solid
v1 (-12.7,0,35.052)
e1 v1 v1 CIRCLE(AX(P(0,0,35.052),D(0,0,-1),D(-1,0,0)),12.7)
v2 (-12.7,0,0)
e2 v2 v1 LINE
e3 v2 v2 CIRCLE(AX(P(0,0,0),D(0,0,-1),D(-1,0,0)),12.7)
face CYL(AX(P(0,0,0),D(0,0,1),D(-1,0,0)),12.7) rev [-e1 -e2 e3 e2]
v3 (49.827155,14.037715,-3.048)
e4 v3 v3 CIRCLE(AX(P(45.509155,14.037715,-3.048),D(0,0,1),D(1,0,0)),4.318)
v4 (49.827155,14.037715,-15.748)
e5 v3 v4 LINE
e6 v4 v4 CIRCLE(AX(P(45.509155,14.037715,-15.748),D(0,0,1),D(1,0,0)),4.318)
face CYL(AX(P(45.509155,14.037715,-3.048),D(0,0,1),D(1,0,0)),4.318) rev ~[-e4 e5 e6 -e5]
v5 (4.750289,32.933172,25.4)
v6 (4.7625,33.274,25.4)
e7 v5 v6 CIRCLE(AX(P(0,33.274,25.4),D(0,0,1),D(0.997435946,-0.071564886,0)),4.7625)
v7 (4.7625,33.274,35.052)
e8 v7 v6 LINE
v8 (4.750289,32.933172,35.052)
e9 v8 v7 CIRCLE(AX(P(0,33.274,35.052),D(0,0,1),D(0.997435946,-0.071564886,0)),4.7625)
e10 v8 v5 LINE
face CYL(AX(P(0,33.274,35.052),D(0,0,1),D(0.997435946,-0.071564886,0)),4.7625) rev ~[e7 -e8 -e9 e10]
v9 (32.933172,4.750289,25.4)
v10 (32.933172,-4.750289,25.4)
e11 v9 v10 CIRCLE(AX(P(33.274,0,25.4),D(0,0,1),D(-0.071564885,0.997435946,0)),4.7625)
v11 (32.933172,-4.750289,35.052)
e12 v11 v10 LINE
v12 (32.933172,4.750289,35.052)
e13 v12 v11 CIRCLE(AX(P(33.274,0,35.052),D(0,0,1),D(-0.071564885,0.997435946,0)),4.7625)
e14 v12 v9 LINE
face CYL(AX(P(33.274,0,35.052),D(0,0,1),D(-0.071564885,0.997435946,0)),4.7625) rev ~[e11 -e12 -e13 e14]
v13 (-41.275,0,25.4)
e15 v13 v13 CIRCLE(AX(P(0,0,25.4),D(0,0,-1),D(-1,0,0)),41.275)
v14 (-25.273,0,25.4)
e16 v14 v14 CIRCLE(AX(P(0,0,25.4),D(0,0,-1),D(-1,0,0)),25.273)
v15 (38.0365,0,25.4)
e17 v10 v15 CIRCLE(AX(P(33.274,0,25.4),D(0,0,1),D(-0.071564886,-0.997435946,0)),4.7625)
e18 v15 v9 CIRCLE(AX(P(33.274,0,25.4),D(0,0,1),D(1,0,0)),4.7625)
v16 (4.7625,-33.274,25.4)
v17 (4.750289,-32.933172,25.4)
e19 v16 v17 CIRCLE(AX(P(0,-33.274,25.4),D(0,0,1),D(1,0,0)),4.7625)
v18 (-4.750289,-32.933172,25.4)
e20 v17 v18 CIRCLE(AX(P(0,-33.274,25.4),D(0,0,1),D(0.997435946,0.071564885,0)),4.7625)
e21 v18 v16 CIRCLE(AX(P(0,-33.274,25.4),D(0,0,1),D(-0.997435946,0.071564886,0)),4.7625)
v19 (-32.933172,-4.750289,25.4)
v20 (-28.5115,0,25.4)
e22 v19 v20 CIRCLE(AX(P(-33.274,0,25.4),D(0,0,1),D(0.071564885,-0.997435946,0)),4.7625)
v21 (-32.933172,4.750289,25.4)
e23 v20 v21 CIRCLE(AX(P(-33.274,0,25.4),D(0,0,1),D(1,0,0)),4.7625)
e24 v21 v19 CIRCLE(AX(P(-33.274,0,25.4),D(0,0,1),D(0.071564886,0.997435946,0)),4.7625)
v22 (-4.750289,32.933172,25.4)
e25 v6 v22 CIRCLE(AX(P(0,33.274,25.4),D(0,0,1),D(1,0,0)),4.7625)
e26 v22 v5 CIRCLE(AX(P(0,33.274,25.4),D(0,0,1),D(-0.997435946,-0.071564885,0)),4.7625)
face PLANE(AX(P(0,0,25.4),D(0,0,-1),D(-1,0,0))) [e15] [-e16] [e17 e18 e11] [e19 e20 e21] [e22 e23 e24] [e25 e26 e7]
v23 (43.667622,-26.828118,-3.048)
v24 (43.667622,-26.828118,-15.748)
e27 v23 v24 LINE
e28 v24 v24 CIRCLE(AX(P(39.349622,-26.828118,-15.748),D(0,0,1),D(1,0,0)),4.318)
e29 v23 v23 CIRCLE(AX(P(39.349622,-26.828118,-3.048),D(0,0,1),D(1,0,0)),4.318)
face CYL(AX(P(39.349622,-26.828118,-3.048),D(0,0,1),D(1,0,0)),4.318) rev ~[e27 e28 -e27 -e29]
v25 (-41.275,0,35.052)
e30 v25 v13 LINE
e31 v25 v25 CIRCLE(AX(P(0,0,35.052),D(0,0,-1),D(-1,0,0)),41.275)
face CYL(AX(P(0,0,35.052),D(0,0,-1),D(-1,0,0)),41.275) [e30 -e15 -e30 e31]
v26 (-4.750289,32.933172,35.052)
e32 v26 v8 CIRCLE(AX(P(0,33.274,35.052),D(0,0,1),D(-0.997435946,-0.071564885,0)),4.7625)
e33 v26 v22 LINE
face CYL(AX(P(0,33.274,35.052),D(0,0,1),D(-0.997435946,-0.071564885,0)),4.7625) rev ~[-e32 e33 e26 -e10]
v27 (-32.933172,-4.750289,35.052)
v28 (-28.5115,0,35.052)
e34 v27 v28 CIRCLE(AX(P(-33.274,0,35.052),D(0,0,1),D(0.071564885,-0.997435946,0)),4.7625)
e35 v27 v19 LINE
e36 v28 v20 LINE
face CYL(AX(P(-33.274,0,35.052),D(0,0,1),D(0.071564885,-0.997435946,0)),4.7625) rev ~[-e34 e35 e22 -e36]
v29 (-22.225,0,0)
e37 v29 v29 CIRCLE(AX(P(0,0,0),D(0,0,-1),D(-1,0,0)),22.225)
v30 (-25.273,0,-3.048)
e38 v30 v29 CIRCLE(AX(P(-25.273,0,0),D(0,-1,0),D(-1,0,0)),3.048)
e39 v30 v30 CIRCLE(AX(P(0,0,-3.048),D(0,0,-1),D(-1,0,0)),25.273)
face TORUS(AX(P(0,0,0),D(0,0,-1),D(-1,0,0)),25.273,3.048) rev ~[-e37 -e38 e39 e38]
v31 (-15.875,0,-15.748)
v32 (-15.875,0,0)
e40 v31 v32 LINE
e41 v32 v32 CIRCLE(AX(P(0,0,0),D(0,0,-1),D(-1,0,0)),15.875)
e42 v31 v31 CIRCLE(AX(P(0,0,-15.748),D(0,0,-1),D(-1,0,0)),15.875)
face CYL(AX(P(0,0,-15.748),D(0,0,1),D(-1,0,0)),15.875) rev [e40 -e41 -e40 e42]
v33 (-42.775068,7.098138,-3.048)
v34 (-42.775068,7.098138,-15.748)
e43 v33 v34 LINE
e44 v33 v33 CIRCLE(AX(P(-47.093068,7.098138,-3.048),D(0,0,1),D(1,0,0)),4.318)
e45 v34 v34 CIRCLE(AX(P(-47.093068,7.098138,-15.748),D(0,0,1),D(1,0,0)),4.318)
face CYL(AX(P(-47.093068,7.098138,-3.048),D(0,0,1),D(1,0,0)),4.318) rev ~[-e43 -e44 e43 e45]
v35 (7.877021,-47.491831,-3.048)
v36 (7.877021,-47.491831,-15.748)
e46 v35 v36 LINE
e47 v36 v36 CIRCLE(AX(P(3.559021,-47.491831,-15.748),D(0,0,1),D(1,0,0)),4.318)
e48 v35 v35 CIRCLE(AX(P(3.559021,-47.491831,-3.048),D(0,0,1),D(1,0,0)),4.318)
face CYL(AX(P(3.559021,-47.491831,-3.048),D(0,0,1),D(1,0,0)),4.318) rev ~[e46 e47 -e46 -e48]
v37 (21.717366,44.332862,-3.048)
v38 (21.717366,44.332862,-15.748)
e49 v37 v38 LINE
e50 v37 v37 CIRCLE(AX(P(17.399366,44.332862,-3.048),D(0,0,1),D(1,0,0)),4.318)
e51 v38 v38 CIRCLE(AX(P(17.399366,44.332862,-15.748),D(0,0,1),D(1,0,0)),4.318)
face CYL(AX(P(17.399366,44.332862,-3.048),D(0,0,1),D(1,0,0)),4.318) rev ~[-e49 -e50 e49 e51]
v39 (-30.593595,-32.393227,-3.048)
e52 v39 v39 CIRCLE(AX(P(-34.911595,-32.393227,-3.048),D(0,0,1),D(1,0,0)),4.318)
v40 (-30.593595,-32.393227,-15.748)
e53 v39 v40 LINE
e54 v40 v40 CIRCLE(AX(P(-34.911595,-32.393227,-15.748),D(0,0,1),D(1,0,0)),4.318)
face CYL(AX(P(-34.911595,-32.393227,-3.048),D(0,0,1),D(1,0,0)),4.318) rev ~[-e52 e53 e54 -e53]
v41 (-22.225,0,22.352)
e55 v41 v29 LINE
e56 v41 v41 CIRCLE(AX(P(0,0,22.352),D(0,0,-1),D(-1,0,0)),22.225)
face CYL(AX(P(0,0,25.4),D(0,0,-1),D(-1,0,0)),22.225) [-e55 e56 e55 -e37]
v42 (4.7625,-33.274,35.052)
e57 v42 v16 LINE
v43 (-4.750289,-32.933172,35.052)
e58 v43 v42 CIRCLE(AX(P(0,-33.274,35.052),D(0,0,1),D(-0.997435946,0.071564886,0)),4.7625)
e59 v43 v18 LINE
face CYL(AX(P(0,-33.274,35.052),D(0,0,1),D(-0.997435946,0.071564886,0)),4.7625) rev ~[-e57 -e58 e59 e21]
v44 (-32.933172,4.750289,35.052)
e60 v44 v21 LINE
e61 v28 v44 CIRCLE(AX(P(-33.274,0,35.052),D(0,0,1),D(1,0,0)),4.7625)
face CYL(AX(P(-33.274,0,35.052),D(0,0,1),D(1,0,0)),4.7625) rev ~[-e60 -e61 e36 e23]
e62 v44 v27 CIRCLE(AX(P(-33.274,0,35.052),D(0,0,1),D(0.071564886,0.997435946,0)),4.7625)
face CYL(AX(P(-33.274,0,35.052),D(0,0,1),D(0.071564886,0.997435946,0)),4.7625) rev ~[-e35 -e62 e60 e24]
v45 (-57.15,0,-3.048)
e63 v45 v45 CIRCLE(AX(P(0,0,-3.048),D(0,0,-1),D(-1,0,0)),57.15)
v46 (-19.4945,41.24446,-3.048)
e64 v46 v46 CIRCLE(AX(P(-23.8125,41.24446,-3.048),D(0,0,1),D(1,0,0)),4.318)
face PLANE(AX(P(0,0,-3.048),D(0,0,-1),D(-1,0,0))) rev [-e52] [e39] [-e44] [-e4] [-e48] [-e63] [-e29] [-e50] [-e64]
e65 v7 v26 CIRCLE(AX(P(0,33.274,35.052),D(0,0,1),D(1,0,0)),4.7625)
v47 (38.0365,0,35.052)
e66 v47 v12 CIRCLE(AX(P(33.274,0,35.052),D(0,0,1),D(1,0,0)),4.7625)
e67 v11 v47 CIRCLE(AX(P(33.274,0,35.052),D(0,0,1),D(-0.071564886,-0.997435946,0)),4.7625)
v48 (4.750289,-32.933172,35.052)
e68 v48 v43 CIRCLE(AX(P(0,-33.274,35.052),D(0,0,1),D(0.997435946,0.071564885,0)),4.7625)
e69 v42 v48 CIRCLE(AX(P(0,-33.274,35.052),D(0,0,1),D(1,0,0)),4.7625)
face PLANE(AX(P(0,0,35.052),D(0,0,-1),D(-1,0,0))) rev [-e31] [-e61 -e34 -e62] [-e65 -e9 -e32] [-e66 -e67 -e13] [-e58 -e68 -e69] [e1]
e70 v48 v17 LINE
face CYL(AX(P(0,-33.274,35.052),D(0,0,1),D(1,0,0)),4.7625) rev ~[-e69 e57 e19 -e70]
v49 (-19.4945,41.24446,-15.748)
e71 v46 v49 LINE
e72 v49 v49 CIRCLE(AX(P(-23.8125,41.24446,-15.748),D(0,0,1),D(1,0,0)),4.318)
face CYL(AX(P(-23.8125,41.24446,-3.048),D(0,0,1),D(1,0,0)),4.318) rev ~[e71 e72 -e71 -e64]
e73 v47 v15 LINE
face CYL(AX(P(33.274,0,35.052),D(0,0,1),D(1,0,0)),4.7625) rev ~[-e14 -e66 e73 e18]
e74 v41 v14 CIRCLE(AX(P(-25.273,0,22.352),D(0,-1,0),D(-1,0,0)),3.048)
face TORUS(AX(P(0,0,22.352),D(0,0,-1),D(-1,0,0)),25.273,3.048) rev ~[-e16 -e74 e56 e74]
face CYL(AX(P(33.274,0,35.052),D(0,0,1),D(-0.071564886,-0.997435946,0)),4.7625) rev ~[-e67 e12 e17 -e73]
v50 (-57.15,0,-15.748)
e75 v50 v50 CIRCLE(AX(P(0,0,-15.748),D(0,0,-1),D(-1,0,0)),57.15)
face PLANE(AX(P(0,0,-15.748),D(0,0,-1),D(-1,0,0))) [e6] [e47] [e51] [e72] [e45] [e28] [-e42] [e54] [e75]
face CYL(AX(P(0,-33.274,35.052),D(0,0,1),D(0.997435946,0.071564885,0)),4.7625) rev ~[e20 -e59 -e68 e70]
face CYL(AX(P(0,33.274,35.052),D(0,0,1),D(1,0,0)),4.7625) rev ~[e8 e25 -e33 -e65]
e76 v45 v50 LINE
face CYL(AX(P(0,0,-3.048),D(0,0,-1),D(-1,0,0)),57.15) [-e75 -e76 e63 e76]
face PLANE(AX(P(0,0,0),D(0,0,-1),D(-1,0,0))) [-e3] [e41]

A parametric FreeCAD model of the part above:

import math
import FreeCAD as App
import Part
import Sketcher

V = App.Vector
Q = App.Units.Quantity


def edges_at(feature, points):
    """Names of the edges that pass closest to the given points."""
    edges = feature.Shape.Edges
    near = lambda p: min(range(len(edges)), key=lambda i: edges[i].distToShape(Part.Vertex(*p))[0])
    return sorted({f"Edge{near(p) + 1}" for p in points})

doc = App.newDocument("Part")
body = doc.addObject("PartDesign::Body", "Body")

sketch1 = body.newObject("Sketcher::SketchObject", "Sketch")
sketch1.AttachmentSupport = (doc.getObject("XZ_Plane"), [""])
sketch1.MapMode = "FlatFace"
sketch1.addGeometry(Part.LineSegment(V(-57.1, -3, 0), V(-57.1, -15.7, 0)), False)
sketch1.addGeometry(Part.LineSegment(V(-57.1, -15.7, 0), V(-15.9, -15.7, 0)), False)
sketch1.addGeometry(Part.LineSegment(V(-15.9, -15.7, 0), V(-15.9, 0, 0)), False)
sketch1.addGeometry(Part.LineSegment(V(-15.9, 0, 0), V(-12.7, 0, 0)), False)
sketch1.addGeometry(Part.LineSegment(V(-12.7, 0, 0), V(-12.7, 35.1, 0)), False)
sketch1.addGeometry(Part.LineSegment(V(-12.7, 35.1, 0), V(-41.3, 35.1, 0)), False)
sketch1.addGeometry(Part.LineSegment(V(-41.3, 35.1, 0), V(-41.3, 25.4, 0)), False)
sketch1.addGeometry(Part.LineSegment(V(-41.3, 25.4, 0), V(-22.2, 25.4, 0)), False)
sketch1.addGeometry(Part.LineSegment(V(-22.2, 25.4, 0), V(-22.2, -3, 0)), False)
sketch1.addGeometry(Part.LineSegment(V(-22.2, -3, 0), V(-57.1, -3, 0)), False)
sketch1.addConstraint(Sketcher.Constraint("Coincident", 0, 2, 1, 1))
sketch1.addConstraint(Sketcher.Constraint("Coincident", 1, 2, 2, 1))
sketch1.addConstraint(Sketcher.Constraint("Coincident", 2, 2, 3, 1))
sketch1.addConstraint(Sketcher.Constraint("Coincident", 3, 2, 4, 1))
sketch1.addConstraint(Sketcher.Constraint("Coincident", 4, 2, 5, 1))
sketch1.addConstraint(Sketcher.Constraint("Coincident", 5, 2, 6, 1))
sketch1.addConstraint(Sketcher.Constraint("Coincident", 6, 2, 7, 1))
sketch1.addConstraint(Sketcher.Constraint("Coincident", 7, 2, 8, 1))
sketch1.addConstraint(Sketcher.Constraint("Coincident", 8, 2, 9, 1))
sketch1.addConstraint(Sketcher.Constraint("Coincident", 9, 2, 0, 1))
sketch1.addConstraint(Sketcher.Constraint("Vertical", 0))
sketch1.addConstraint(Sketcher.Constraint("Horizontal", 1))
sketch1.addConstraint(Sketcher.Constraint("Vertical", 2))
sketch1.addConstraint(Sketcher.Constraint("Horizontal", 3))
sketch1.addConstraint(Sketcher.Constraint("Vertical", 4))
sketch1.addConstraint(Sketcher.Constraint("Horizontal", 5))
sketch1.addConstraint(Sketcher.Constraint("Vertical", 6))
sketch1.addConstraint(Sketcher.Constraint("Horizontal", 7))
sketch1.addConstraint(Sketcher.Constraint("Vertical", 8))
sketch1.addConstraint(Sketcher.Constraint("Horizontal", 9))
sketch1.addConstraint(Sketcher.Constraint("PointOnObject", 2, 2, -1))
sketch1.addConstraint(Sketcher.Constraint("DistanceY", 0, 2, 0, 1, Q("0.5 in")))
sketch1.addConstraint(Sketcher.Constraint("DistanceY", -1, 1, 6, 2, Q("1 in")))
sketch1.addConstraint(Sketcher.Constraint("DistanceY", 1, 2, 4, 2, Q("2 in")))
sketch1.addConstraint(Sketcher.Constraint("DistanceX", 5, 2, 2, 2, Q("1 in")))
sketch1.addConstraint(Sketcher.Constraint("DistanceX", 7, 1, 7, 2, Q("0.75 in")))
sketch1.addConstraint(Sketcher.Constraint("DistanceY", 2, 1, 2, 2, Q("0.62 in")))
sketch1.addConstraint(Sketcher.Constraint("DistanceX", 3, 2, -1, 1, Q("0.5 in")))
sketch1.addConstraint(Sketcher.Constraint("DistanceX", 1, 1, 1, 2, Q("1.625 in")))
sketch1.addConstraint(Sketcher.Constraint("DistanceX", 3, 1, 3, 2, Q("0.125 in")))
revolution = body.newObject("PartDesign::Revolution", "Revolution")
revolution.Profile = sketch1
revolution.ReferenceAxis = (sketch1, ["V_Axis"])
revolution.Angle = 360

sketch2 = body.newObject("Sketcher::SketchObject", "Sketch001")
sketch2.AttachmentSupport = (doc.getObject("XY_Plane"), [""])
sketch2.MapMode = "FlatFace"
sketch2.AttachmentOffset = App.Placement(V(0, 0, 1.38 * 25.4), App.Rotation())
sketch2.addGeometry(Part.ArcOfCircle(Part.Circle(V(0, 33.27, 0), V(0, 0, 1), 4.76), math.radians(-176), math.radians(-4)), False)
sketch2.addGeometry(Part.ArcOfCircle(Part.Circle(V(0, 33.27, 0), V(0, 0, 1), 4.76), math.radians(-4.1), math.radians(0)), False)
sketch2.addGeometry(Part.ArcOfCircle(Part.Circle(V(0, 33.27, 0), V(0, 0, 1), 4.76), math.radians(0), math.radians(184)), False)
sketch2.addGeometry(Part.ArcOfCircle(Part.Circle(V(33.27, 0, 0), V(0, 0, 1), 4.76), math.radians(94), math.radians(266)), False)
sketch2.addGeometry(Part.ArcOfCircle(Part.Circle(V(33.27, 0, 0), V(0, 0, 1), 4.76), math.radians(-94), math.radians(0)), False)
sketch2.addGeometry(Part.ArcOfCircle(Part.Circle(V(33.27, 0, 0), V(0, 0, 1), 4.76), math.radians(0), math.radians(94)), False)
sketch2.addGeometry(Part.ArcOfCircle(Part.Circle(V(0, -33.27, 0), V(0, 0, 1), 4.76), math.radians(0), math.radians(4.1)), False)
sketch2.addGeometry(Part.ArcOfCircle(Part.Circle(V(0, -33.27, 0), V(0, 0, 1), 4.76), math.radians(4), math.radians(176)), False)
sketch2.addGeometry(Part.ArcOfCircle(Part.Circle(V(0, -33.27, 0), V(0, 0, 1), 4.76), math.radians(176), math.radians(360)), False)
sketch2.addGeometry(Part.ArcOfCircle(Part.Circle(V(-33.27, 0, 0), V(0, 0, 1), 4.76), math.radians(0), math.radians(86)), False)
sketch2.addGeometry(Part.ArcOfCircle(Part.Circle(V(-33.27, 0, 0), V(0, 0, 1), 4.76), math.radians(86), math.radians(274)), False)
sketch2.addGeometry(Part.ArcOfCircle(Part.Circle(V(-33.27, 0, 0), V(0, 0, 1), 4.76), math.radians(-86), math.radians(0)), False)
sketch2.addConstraint(Sketcher.Constraint("Tangent", 0, 2, 1, 1))
sketch2.addConstraint(Sketcher.Constraint("Tangent", 1, 2, 2, 1))
sketch2.addConstraint(Sketcher.Constraint("Tangent", 2, 2, 0, 1))
sketch2.addConstraint(Sketcher.Constraint("Tangent", 3, 2, 4, 1))
sketch2.addConstraint(Sketcher.Constraint("Tangent", 4, 2, 5, 1))
sketch2.addConstraint(Sketcher.Constraint("Tangent", 5, 2, 3, 1))
sketch2.addConstraint(Sketcher.Constraint("Tangent", 6, 2, 7, 1))
sketch2.addConstraint(Sketcher.Constraint("Tangent", 7, 2, 8, 1))
sketch2.addConstraint(Sketcher.Constraint("Tangent", 8, 2, 6, 1))
sketch2.addConstraint(Sketcher.Constraint("Tangent", 9, 2, 10, 1))
sketch2.addConstraint(Sketcher.Constraint("Tangent", 10, 2, 11, 1))
sketch2.addConstraint(Sketcher.Constraint("Tangent", 11, 2, 9, 1))
sketch2.addConstraint(Sketcher.Constraint("Equal", 2, 3))
sketch2.addConstraint(Sketcher.Constraint("Equal", 5, 6))
sketch2.addConstraint(Sketcher.Constraint("Equal", 8, 9))
sketch2.addConstraint(Sketcher.Constraint("Symmetric", 0, 3, 6, 3, -1, 1))
sketch2.addConstraint(Sketcher.Constraint("Symmetric", 3, 3, 9, 3, -1, 1))
sketch2.addConstraint(Sketcher.Constraint("Symmetric", 0, 2, 2, 2, -2))
sketch2.addConstraint(Sketcher.Constraint("Symmetric", 5, 2, 9, 2, -2))
sketch2.addConstraint(Sketcher.Constraint("PointOnObject", 4, 2, -1))
sketch2.addConstraint(Sketcher.Constraint("PointOnObject", 11, 2, -1))
sketch2.addConstraint(Sketcher.Constraint("Horizontal", 2, 3, 1, 2))
sketch2.addConstraint(Sketcher.Constraint("Horizontal", 6, 2, 7, 2))
sketch2.addConstraint(Sketcher.Constraint("Horizontal", 7, 3, 8, 2))
sketch2.addConstraint(Sketcher.Constraint("Horizontal", 3, 2, 10, 2))
sketch2.addConstraint(Sketcher.Constraint("Vertical", 3, 2, 5, 2))
sketch2.addConstraint(Sketcher.Constraint("Vertical", 0, 2, 6, 2))
sketch2.addConstraint(Sketcher.Constraint("Radius", 0, Q("0.1875 in")))
sketch2.addConstraint(Sketcher.Constraint("DistanceY", -1, 1, 0, 3, Q("1.31 in")))
sketch2.addConstraint(Sketcher.Constraint("DistanceX", -1, 1, 3, 3, Q("1.31 in")))
sketch2.addConstraint(Sketcher.Constraint("DistanceX", -1, 1, 0, 2, Q("4.750289 mm")))
sketch2.addConstraint(Sketcher.Constraint("DistanceY", 3, 2, -1, 1, Q("4.750289 mm")))
pocket1 = body.newObject("PartDesign::Pocket", "Pocket")
pocket1.Profile = sketch2
pocket1.Length = Q("0.38 in")

sketch3 = body.newObject("Sketcher::SketchObject", "Sketch002")
sketch3.AttachmentSupport = (doc.getObject("XY_Plane"), [""])
sketch3.MapMode = "FlatFace"
sketch3.AttachmentOffset = App.Placement(V(0, 0, -0.12 * 25.4), App.Rotation())
sketch3.addGeometry(Part.Circle(V(-23.8, 41.2, 0), V(0, 0, 1), 4.3), False)
sketch3.addGeometry(Part.Circle(V(-47.1, 7.1, 0), V(0, 0, 1), 4.3), False)
sketch3.addGeometry(Part.Circle(V(-34.9, -32.4, 0), V(0, 0, 1), 4.3), False)
sketch3.addGeometry(Part.Circle(V(3.6, -47.5, 0), V(0, 0, 1), 4.3), False)
sketch3.addGeometry(Part.Circle(V(39.3, -26.8, 0), V(0, 0, 1), 4.3), False)
sketch3.addGeometry(Part.Circle(V(45.5, 14, 0), V(0, 0, 1), 4.3), False)
sketch3.addGeometry(Part.Circle(V(17.4, 44.3, 0), V(0, 0, 1), 4.3), False)
sketch3.addConstraint(Sketcher.Constraint("Equal", 0, 1))
sketch3.addConstraint(Sketcher.Constraint("Equal", 1, 2))
sketch3.addConstraint(Sketcher.Constraint("Equal", 2, 3))
sketch3.addConstraint(Sketcher.Constraint("Equal", 3, 4))
sketch3.addConstraint(Sketcher.Constraint("Equal", 4, 5))
sketch3.addConstraint(Sketcher.Constraint("Equal", 5, 6))
sketch3.addConstraint(Sketcher.Constraint("Diameter", 0, Q("0.34 in")))
sketch3.addConstraint(Sketcher.Constraint("DistanceX", 0, 3, -1, 1, Q("0.9375 in")))
sketch3.addConstraint(Sketcher.Constraint("DistanceX", 3, 3, 4, 3, Q("35.790601 mm")))
sketch3.addConstraint(Sketcher.Constraint("DistanceY", -1, 1, 0, 3, Q("41.24446 mm")))
sketch3.addConstraint(Sketcher.Constraint("DistanceX", 1, 3, -1, 1, Q("47.093068 mm")))
sketch3.addConstraint(Sketcher.Constraint("DistanceX", -1, 1, 3, 3, Q("3.559021 mm")))
sketch3.addConstraint(Sketcher.Constraint("DistanceY", 3, 3, -1, 1, Q("47.491831 mm")))
sketch3.addConstraint(Sketcher.Constraint("DistanceY", 1, 3, 0, 3, Q("34.146322 mm")))
sketch3.addConstraint(Sketcher.Constraint("DistanceY", 2, 3, 4, 3, Q("5.565109 mm")))
sketch3.addConstraint(Sketcher.Constraint("DistanceX", 2, 3, 5, 3, Q("80.42075 mm")))
sketch3.addConstraint(Sketcher.Constraint("DistanceY", 2, 3, 5, 3, Q("46.430942 mm")))
sketch3.addConstraint(Sketcher.Constraint("DistanceX", 6, 3, 5, 3, Q("28.109789 mm")))
sketch3.addConstraint(Sketcher.Constraint("DistanceY", 4, 3, 6, 3, Q("71.16098 mm")))
sketch3.addConstraint(Sketcher.Constraint("DistanceX", 2, 3, -1, 1, Q("34.911595 mm")))
sketch3.addConstraint(Sketcher.Constraint("DistanceY", 2, 3, -1, 1, Q("32.393227 mm")))
pocket2 = body.newObject("PartDesign::Pocket", "Pocket001")
pocket2.Profile = sketch3
pocket2.Type = "ThroughAll"
doc.recompute()

fillet = body.newObject("PartDesign::Fillet", "Fillet")
fillet.Base = (pocket2, edges_at(pocket2, [(22.225, 0, -3.048), (22.225, 0, 25.4)]))
fillet.Radius = Q("0.12 in")

doc.recompute()
